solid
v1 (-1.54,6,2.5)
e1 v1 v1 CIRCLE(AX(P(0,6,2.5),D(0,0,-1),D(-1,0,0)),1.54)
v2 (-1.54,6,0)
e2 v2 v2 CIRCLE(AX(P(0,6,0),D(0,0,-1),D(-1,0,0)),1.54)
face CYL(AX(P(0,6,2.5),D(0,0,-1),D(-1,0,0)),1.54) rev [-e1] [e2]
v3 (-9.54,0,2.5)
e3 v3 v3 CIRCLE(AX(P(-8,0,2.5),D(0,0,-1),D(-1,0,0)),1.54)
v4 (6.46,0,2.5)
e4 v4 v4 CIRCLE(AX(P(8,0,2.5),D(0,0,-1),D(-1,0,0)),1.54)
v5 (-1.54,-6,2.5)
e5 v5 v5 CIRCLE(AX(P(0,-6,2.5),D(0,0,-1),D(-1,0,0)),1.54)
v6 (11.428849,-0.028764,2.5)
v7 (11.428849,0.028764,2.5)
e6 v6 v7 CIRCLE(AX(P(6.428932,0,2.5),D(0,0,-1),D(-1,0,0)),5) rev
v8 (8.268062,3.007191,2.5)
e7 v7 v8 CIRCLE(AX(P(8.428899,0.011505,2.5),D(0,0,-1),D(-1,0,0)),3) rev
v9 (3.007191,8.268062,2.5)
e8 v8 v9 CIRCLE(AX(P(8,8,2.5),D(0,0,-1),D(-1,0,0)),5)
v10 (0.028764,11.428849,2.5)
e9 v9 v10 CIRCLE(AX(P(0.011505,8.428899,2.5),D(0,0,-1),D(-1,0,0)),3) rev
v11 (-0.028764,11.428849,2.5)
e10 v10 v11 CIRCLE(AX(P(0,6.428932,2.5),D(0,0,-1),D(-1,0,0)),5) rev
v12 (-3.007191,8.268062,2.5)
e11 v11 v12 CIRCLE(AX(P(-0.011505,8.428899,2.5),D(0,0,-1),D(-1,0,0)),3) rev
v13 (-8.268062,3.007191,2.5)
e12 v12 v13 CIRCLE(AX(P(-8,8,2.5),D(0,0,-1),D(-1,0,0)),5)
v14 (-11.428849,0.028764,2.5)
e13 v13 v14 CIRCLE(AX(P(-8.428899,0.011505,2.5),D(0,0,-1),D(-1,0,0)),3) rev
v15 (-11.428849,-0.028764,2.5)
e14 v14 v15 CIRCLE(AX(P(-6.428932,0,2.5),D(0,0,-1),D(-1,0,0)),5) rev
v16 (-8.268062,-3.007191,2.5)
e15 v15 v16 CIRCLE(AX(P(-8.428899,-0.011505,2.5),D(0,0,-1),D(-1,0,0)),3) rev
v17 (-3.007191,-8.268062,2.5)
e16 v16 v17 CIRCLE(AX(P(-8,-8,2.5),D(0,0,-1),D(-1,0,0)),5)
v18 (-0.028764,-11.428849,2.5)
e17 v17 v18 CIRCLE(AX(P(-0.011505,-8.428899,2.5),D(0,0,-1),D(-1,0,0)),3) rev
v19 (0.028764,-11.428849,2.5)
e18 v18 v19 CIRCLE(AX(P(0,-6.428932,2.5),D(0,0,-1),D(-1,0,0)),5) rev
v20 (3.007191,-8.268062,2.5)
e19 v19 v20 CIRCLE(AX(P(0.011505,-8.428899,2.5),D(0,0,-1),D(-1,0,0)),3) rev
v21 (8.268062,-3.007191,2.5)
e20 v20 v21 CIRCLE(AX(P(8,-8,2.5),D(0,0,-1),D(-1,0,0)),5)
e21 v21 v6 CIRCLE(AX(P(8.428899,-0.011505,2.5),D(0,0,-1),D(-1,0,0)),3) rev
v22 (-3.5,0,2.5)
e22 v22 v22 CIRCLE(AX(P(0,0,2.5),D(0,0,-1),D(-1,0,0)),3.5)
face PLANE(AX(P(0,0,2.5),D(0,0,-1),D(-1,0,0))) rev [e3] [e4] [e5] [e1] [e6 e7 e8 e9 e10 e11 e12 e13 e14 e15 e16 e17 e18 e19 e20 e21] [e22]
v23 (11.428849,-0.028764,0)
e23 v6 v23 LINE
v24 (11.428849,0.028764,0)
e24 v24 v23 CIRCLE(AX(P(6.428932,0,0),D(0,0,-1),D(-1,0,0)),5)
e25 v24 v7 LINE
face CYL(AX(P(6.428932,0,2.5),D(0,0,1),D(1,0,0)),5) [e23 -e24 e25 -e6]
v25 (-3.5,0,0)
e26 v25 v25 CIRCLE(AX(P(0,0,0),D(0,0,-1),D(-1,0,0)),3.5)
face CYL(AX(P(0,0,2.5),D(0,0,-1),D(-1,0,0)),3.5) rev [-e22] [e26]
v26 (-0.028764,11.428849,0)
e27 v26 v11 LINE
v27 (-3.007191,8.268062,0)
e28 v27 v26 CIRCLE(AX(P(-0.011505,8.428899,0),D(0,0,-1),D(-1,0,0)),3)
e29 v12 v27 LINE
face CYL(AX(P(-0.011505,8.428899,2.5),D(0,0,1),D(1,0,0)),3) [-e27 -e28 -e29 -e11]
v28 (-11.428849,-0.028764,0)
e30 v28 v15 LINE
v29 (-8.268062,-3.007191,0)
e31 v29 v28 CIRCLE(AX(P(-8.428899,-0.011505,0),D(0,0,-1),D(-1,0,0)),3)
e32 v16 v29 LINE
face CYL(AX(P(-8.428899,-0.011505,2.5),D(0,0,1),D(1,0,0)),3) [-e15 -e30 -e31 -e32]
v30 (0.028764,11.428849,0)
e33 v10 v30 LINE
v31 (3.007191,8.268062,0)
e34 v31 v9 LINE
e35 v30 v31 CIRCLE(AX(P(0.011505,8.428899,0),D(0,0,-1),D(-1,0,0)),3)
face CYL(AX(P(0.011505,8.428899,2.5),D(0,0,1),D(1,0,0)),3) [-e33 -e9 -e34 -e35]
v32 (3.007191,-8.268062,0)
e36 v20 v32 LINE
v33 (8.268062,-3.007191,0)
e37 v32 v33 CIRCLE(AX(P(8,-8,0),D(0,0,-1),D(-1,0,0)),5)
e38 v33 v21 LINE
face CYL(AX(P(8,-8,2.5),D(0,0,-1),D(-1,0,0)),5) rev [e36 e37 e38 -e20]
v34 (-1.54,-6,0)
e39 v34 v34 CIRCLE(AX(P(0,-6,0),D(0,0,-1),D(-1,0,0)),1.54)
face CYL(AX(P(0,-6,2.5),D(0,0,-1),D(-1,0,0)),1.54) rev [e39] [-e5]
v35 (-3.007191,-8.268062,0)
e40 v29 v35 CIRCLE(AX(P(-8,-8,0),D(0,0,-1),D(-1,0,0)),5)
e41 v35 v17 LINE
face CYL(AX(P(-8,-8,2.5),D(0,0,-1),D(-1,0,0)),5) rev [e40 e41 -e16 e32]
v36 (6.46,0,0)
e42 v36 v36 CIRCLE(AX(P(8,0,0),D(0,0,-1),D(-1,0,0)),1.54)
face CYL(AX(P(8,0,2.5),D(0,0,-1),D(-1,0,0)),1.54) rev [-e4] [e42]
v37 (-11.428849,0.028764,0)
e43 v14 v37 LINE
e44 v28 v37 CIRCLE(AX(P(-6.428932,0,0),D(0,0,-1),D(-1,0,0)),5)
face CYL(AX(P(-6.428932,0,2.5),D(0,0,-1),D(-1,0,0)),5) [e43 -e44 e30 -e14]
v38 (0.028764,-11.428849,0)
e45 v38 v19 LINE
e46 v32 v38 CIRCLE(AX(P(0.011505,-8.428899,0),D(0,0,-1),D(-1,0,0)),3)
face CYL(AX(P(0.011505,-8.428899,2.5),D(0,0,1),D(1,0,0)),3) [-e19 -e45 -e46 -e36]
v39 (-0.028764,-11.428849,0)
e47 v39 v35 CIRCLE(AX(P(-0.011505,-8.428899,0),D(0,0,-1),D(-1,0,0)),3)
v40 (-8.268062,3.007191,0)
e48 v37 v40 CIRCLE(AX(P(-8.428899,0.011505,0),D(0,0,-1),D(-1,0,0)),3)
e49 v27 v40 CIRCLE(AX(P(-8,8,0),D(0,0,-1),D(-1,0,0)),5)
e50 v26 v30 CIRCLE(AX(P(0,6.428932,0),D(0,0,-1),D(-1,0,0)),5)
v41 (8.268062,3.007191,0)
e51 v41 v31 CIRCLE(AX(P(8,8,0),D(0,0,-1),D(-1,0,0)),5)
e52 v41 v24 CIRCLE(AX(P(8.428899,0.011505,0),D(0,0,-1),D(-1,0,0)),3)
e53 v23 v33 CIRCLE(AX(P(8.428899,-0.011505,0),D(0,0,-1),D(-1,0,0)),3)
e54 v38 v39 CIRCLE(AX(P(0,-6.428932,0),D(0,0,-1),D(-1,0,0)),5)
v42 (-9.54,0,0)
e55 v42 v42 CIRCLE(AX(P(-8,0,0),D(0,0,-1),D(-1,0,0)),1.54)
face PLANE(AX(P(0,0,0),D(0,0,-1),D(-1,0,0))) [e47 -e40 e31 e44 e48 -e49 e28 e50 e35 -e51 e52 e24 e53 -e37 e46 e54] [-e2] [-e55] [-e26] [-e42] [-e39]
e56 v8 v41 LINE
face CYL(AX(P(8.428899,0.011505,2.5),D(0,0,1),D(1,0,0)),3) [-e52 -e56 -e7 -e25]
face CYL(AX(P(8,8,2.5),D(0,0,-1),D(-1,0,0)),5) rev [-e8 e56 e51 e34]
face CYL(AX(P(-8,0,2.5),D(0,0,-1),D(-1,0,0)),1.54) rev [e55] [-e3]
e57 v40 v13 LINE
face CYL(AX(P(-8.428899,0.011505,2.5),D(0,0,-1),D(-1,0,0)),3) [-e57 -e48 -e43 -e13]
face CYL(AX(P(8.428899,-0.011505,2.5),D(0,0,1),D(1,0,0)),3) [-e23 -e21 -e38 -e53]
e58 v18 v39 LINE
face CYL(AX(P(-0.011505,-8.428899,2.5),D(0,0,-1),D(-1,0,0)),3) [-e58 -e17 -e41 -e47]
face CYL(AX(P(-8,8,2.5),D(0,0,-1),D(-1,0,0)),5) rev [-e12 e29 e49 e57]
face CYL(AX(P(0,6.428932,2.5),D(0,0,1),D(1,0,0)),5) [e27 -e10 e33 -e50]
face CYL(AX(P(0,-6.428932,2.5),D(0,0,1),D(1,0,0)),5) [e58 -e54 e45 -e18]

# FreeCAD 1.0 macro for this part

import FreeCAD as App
import Part
import Sketcher
from FreeCAD import Vector


def edges_at(feature, points):
    """Names of the edges that pass closest to the given points."""
    edges = feature.Shape.Edges
    near = lambda p: min(range(len(edges)), key=lambda i: edges[i].distToShape(Part.Vertex(*p))[0])
    return sorted({f"Edge{near(p) + 1}" for p in points})

doc = App.newDocument("Part")
body = doc.addObject("PartDesign::Body", "Body")

# Sketch on XY plane
sketch1 = body.newObject("Sketcher::SketchObject", "Sketch")
sketch1.AttachmentSupport = (doc.getObject("XY_Plane"), [""])
sketch1.MapMode = "FlatFace"
sketch1.addGeometry([
    Part.LineSegment(Vector(14, 0, 0), Vector(0, 14, 0)),
    Part.LineSegment(Vector(0, 14, 0), Vector(-14, 0, 0)),
    Part.LineSegment(Vector(-14, 0, 0), Vector(0, -14, 0)),
    Part.LineSegment(Vector(0, -14, 0), Vector(14, 0, 0)),
], False)
sketch1.addConstraint([
    Sketcher.Constraint("Coincident", 0, 2, 1, 1),
    Sketcher.Constraint("Coincident", 1, 2, 2, 1),
    Sketcher.Constraint("Coincident", 2, 2, 3, 1),
    Sketcher.Constraint("Coincident", 3, 2, 0, 1),
    Sketcher.Constraint("Symmetric", 0, 2, 2, 2, -1, 1),
    Sketcher.Constraint("Symmetric", 1, 2, 3, 2, -1, 1),
    Sketcher.Constraint("PointOnObject", 0, 2, -2),
    Sketcher.Constraint("PointOnObject", 1, 2, -1),
    Sketcher.Constraint("Perpendicular", 0, 1),
    Sketcher.Constraint("DistanceY", 2, 2, 0, 2, 27.0),
])
pad1 = body.newObject("PartDesign::Pad", "Pad")
pad1.Profile = sketch1
pad1.Length = 2.5
doc.recompute()

fillet = body.newObject("PartDesign::Fillet", "Fillet")
fillet.Base = (pad1, edges_at(pad1, [(13.5, 0, 1.25)]))
fillet.Radius = 5
doc.recompute()

fillet2 = body.newObject("PartDesign::Fillet", "Fillet001")
fillet2.Base = (fillet, edges_at(fillet, [(0, -13.5, 1.25)]))
fillet2.Radius = 5
doc.recompute()

fillet3 = body.newObject("PartDesign::Fillet", "Fillet002")
fillet3.Base = (fillet2, edges_at(fillet2, [(-13.5, 0, 1.25)]))
fillet3.Radius = 5
doc.recompute()

fillet4 = body.newObject("PartDesign::Fillet", "Fillet003")
fillet4.Base = (fillet3, edges_at(fillet3, [(0, 13.5, 1.25)]))
fillet4.Radius = 5

# Sketch on XY plane
sketch2 = body.newObject("Sketcher::SketchObject", "Sketch001")
sketch2.AttachmentSupport = (doc.getObject("XY_Plane"), [""])
sketch2.MapMode = "FlatFace"
sketch2.addGeometry([
    Part.Circle(Vector(0, 0, 0), Vector(0, 0, 1), 3.5),  # 0
    Part.Circle(Vector(0, -6, 0), Vector(0, 0, 1), 1.5),  # 1
    Part.Circle(Vector(0, 6, 0), Vector(0, 0, 1), 1.5),  # 2
    Part.Circle(Vector(-8, 0, 0), Vector(0, 0, 1), 1.5),  # 3
    Part.Circle(Vector(8, 0, 0), Vector(0, 0, 1), 1.5),  # 4
    Part.Circle(Vector(-8, 8, 0), Vector(0, 0, 1), 5),  # 5
    Part.Circle(Vector(-8, -8, 0), Vector(0, 0, 1), 5),  # 6
    Part.Circle(Vector(8, -8, 0), Vector(0, 0, 1), 5),  # 7
    Part.Circle(Vector(8, 8, 0), Vector(0, 0, 1), 5),  # 8
], False)
sketch2.addConstraint([
    Sketcher.Constraint("Coincident", 0, 3, -1, 1),
    Sketcher.Constraint("Equal", 1, 2),
    Sketcher.Constraint("Equal", 2, 3),
    Sketcher.Constraint("Equal", 3, 4),
    Sketcher.Constraint("Equal", 5, 6),
    Sketcher.Constraint("Equal", 6, 7),
    Sketcher.Constraint("Equal", 7, 8),
    Sketcher.Constraint("Symmetric", 1, 3, 2, 3, -1, 1),
    Sketcher.Constraint("Symmetric", 3, 3, 4, 3, -1, 1),
    Sketcher.Constraint("Symmetric", 5, 3, 7, 3, -1, 1),
    Sketcher.Constraint("Symmetric", 6, 3, 8, 3, -1, 1),
    Sketcher.Constraint("Symmetric", 6, 3, 7, 3, -2),
    Sketcher.Constraint("PointOnObject", 1, 3, -2),
    Sketcher.Constraint("PointOnObject", 3, 3, -1),
    Sketcher.Constraint("Vertical", 3, 3, 5, 3),
    Sketcher.Constraint("Diameter", 0, 7.0),
    Sketcher.Constraint("Diameter", 5, 10.0),
    Sketcher.Constraint("Diameter", 1, 3.08),
    Sketcher.Constraint("DistanceY", 1, 3, -1, 1, 6.0),
    Sketcher.Constraint("DistanceX", 3, 3, -1, 1, 8.0),
    Sketcher.Constraint("DistanceY", -1, 1, 5, 3, 8.0),
])
pocket1 = body.newObject("PartDesign::Pocket", "Pocket")
pocket1.Profile = sketch2
pocket1.Length = 2.5
pocket1.Reversed = True
doc.recompute()

fillet5 = body.newObject("PartDesign::Fillet", "Fillet004")
fillet5.Base = (pocket1, edges_at(pocket1, [(3.442, -10.056, 1.25)]))
fillet5.Radius = 3
doc.recompute()

fillet6 = body.newObject("PartDesign::Fillet", "Fillet005")
fillet6.Base = (fillet5, edges_at(fillet5, [(-3.442, -10.056, 1.25)]))
fillet6.Radius = 3
doc.recompute()

fillet7 = body.newObject("PartDesign::Fillet", "Fillet006")
fillet7.Base = (fillet6, edges_at(fillet6, [(-10.056, -3.442, 1.25)]))
fillet7.Radius = 3
doc.recompute()

fillet8 = body.newObject("PartDesign::Fillet", "Fillet007")
fillet8.Base = (fillet7, edges_at(fillet7, [(3.442, 10.056, 1.25)]))
fillet8.Radius = 3
doc.recompute()

fillet9 = body.newObject("PartDesign::Fillet", "Fillet008")
fillet9.Base = (fillet8, edges_at(fillet8, [(-3.442, 10.056, 1.25)]))
fillet9.Radius = 3
doc.recompute()

fillet10 = body.newObject("PartDesign::Fillet", "Fillet009")
fillet10.Base = (fillet9, edges_at(fillet9, [(-10.056, 3.442, 1.25)]))
fillet10.Radius = 3
doc.recompute()

fillet11 = body.newObject("PartDesign::Fillet", "Fillet010")
fillet11.Base = (fillet10, edges_at(fillet10, [(10.056, -3.442, 1.25)]))
fillet11.Radius = 3
doc.recompute()

fillet12 = body.newObject("PartDesign::Fillet", "Fillet011")
fillet12.Base = (fillet11, edges_at(fillet11, [(10.056, 3.442, 1.25)]))
fillet12.Radius = 3

doc.recompute()
